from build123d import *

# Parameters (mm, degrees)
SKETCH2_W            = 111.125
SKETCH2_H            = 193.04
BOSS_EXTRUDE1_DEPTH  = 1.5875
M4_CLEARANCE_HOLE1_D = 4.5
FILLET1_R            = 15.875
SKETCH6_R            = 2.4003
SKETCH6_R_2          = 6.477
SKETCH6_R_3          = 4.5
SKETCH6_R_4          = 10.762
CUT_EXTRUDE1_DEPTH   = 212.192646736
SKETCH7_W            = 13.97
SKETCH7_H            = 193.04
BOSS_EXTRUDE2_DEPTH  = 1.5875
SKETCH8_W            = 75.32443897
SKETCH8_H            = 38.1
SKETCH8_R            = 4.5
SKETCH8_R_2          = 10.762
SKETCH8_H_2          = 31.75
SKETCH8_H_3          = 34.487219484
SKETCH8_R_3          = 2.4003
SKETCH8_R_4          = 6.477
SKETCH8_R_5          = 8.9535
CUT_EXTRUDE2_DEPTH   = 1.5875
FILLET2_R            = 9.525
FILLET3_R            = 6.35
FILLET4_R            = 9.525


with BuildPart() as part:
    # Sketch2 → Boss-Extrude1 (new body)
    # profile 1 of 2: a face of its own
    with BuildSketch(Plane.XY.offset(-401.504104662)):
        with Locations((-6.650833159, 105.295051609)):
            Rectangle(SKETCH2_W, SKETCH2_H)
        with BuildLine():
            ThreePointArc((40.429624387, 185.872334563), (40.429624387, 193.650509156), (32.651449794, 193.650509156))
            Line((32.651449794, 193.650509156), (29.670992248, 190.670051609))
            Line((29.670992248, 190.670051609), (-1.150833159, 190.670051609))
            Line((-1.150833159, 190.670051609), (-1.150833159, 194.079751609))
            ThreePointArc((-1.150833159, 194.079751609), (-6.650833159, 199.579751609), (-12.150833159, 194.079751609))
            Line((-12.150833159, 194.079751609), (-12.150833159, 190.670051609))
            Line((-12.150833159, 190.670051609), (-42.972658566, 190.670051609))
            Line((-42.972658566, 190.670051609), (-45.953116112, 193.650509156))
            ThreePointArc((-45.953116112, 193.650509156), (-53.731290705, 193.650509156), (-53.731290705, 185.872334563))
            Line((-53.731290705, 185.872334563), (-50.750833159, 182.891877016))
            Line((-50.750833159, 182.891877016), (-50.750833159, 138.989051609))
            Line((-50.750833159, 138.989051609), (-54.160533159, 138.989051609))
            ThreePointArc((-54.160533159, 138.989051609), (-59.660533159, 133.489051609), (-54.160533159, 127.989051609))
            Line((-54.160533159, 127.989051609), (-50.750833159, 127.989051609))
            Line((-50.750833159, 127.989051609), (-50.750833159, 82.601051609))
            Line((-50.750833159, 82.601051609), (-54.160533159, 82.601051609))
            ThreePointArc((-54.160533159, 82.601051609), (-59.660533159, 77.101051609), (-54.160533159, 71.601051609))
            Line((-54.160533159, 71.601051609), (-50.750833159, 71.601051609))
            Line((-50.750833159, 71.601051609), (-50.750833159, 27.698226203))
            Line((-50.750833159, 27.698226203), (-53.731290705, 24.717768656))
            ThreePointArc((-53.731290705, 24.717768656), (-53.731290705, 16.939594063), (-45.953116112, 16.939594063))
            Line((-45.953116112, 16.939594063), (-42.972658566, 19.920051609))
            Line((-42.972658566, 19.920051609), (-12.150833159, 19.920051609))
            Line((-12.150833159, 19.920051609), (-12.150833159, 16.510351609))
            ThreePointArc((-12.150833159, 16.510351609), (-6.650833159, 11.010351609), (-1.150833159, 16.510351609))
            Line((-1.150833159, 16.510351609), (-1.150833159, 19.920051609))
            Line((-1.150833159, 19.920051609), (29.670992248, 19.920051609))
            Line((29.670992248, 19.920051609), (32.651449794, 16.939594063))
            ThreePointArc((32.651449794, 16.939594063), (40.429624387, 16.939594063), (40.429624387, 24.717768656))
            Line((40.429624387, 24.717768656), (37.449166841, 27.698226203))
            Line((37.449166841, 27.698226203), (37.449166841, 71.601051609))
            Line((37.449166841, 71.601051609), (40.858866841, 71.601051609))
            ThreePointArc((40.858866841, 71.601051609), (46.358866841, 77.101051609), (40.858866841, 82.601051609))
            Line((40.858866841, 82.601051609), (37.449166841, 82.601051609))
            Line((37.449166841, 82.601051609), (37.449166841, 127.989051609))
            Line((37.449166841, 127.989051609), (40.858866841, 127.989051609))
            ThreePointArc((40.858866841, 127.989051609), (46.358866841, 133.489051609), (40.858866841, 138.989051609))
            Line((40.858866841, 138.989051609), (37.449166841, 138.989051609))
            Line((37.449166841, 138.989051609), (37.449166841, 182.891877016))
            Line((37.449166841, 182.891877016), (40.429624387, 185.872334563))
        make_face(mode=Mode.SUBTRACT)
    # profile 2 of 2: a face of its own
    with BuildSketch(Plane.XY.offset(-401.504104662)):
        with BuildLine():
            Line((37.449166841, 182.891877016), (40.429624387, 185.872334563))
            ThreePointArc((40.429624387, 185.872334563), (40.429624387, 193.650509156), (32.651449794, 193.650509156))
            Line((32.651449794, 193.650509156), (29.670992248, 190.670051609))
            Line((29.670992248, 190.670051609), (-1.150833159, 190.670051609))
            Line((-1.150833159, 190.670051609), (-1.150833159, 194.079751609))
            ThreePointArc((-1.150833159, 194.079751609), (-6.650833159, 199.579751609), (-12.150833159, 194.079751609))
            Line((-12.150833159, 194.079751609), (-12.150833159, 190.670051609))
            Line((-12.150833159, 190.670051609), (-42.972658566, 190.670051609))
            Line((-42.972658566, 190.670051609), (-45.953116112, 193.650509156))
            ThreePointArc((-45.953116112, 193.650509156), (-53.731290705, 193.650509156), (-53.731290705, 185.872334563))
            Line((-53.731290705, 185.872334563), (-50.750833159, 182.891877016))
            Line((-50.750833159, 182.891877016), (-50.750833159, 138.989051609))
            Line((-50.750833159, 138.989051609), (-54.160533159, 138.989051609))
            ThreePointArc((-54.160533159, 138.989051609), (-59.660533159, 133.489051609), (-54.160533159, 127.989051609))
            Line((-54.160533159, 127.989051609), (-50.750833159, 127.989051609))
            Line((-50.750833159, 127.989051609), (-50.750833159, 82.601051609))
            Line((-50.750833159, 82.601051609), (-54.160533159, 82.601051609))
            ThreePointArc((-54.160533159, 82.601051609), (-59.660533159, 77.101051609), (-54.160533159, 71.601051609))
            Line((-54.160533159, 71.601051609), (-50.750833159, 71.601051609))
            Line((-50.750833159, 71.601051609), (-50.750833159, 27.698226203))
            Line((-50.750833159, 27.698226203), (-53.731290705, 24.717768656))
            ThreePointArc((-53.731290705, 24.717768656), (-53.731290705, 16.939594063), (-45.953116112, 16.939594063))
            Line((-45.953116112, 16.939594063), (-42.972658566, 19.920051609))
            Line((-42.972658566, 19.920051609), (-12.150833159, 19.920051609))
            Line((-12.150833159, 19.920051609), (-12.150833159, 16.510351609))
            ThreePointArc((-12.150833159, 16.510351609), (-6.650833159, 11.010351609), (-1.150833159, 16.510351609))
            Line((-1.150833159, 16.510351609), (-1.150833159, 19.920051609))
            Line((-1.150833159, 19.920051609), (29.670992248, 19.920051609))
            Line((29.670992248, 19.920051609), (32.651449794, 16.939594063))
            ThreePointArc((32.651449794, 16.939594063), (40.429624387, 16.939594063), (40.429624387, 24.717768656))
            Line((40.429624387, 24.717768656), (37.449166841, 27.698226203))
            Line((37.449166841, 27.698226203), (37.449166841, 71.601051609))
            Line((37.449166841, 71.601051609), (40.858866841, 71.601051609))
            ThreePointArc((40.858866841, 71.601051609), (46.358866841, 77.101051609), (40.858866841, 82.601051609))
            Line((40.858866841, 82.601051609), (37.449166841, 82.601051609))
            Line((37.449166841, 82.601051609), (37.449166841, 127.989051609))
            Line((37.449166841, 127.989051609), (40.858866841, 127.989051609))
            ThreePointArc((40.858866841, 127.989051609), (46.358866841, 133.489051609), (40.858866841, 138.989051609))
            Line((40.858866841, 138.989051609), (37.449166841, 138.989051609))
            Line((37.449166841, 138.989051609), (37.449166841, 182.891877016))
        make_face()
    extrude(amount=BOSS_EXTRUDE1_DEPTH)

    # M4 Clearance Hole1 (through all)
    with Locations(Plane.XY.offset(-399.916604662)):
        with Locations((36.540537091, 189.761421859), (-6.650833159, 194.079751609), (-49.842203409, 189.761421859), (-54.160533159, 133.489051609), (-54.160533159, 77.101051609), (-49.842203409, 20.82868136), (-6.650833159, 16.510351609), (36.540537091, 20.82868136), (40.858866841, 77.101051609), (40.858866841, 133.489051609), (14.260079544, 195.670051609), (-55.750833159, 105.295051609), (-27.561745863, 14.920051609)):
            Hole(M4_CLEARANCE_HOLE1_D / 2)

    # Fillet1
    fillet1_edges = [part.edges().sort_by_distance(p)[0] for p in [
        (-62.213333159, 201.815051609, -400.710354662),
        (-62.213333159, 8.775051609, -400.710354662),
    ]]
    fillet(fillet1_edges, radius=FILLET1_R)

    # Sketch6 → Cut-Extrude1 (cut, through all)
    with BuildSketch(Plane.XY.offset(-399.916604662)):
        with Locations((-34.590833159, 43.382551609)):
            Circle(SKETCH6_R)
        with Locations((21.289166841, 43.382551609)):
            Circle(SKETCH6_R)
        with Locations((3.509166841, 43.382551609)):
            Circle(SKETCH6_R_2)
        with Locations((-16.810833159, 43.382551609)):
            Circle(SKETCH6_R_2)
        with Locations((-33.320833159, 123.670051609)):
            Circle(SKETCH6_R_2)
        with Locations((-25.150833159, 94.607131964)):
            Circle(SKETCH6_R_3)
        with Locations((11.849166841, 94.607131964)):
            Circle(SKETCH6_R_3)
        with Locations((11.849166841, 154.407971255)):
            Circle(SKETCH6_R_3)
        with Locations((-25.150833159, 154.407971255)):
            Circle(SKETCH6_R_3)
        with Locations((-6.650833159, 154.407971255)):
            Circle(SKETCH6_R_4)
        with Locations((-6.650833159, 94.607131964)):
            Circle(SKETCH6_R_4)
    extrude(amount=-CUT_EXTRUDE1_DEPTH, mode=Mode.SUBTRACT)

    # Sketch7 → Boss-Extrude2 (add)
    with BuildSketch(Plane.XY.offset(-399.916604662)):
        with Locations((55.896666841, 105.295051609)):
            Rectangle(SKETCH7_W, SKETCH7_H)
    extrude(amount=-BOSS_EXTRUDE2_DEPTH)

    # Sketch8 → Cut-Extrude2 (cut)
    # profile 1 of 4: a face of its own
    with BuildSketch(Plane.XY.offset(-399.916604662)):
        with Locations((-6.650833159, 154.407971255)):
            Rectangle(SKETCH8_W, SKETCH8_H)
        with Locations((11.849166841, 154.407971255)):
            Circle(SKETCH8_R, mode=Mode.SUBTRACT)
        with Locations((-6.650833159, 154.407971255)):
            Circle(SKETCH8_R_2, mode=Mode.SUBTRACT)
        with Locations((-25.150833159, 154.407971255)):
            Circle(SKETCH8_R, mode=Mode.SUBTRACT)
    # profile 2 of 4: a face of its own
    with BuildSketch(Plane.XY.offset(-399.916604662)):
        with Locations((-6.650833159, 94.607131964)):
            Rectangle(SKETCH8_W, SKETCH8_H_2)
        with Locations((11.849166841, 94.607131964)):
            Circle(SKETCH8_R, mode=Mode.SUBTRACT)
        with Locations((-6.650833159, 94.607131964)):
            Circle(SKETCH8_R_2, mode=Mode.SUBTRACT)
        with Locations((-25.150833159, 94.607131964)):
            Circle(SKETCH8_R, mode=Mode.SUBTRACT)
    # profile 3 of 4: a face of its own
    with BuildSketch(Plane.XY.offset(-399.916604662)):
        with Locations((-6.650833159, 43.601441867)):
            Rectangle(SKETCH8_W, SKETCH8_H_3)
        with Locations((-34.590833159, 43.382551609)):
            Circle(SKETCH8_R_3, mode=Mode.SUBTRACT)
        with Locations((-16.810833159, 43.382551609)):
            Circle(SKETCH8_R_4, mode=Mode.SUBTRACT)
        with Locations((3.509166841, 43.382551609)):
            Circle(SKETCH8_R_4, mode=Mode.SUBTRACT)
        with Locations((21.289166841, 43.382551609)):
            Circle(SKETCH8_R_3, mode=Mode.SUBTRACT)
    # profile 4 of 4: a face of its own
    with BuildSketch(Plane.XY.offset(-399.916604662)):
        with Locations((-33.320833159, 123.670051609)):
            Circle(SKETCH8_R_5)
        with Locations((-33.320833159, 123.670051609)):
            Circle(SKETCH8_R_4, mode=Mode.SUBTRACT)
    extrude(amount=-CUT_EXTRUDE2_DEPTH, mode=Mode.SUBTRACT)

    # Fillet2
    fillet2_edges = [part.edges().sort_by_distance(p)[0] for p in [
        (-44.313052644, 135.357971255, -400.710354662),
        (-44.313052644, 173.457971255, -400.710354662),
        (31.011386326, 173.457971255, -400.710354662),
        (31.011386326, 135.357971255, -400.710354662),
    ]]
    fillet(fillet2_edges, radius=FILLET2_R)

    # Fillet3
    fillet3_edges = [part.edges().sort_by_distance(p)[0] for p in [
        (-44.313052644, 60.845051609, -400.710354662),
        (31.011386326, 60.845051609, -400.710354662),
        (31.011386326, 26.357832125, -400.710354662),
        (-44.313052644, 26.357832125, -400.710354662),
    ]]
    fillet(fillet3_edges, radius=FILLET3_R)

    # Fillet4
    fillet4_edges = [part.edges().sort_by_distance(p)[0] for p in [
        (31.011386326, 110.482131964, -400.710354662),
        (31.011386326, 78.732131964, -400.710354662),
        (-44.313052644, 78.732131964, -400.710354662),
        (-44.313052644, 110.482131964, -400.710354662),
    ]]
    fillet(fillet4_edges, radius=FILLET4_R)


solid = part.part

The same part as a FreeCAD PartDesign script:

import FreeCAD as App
import Part
import Sketcher
from FreeCAD import Vector
Q = App.Units.Quantity


def edges_at(feature, points):
    """Names of the edges that pass closest to the given points."""
    edges = feature.Shape.Edges
    near = lambda p: min(range(len(edges)), key=lambda i: edges[i].distToShape(Part.Vertex(*p))[0])
    return sorted({f"Edge{near(p) + 1}" for p in points})

doc = App.newDocument("Part")
body = doc.addObject("PartDesign::Body", "Body")

# Sketch on XY plane
sketch1 = body.newObject("Sketcher::SketchObject", "Sketch")
sketch1.AttachmentSupport = (doc.getObject("XY_Plane"), [""])
sketch1.MapMode = "FlatFace"
sketch1.AttachmentOffset = App.Placement(Vector(0, 0, -401.504105), App.Rotation())
sketch1.addGeometry(Part.LineSegment(Vector(-62, 202, 0), Vector(-62, 9, 0)), False)
sketch1.addGeometry(Part.LineSegment(Vector(-62, 9, 0), Vector(49, 9, 0)), False)
sketch1.addGeometry(Part.LineSegment(Vector(49, 9, 0), Vector(49, 202, 0)), False)
sketch1.addGeometry(Part.LineSegment(Vector(49, 202, 0), Vector(-62, 202, 0)), False)
sketch1.addConstraint(Sketcher.Constraint("Coincident", 0, 2, 1, 1))
sketch1.addConstraint(Sketcher.Constraint("Coincident", 1, 2, 2, 1))
sketch1.addConstraint(Sketcher.Constraint("Coincident", 2, 2, 3, 1))
sketch1.addConstraint(Sketcher.Constraint("Coincident", 3, 2, 0, 1))
sketch1.addConstraint(Sketcher.Constraint("Vertical", 0))
sketch1.addConstraint(Sketcher.Constraint("Horizontal", 1))
sketch1.addConstraint(Sketcher.Constraint("Vertical", 2))
sketch1.addConstraint(Sketcher.Constraint("Horizontal", 3))
sketch1.addConstraint(Sketcher.Constraint("DistanceY", 0, 2, 0, 1, Q("7.6 in")))
sketch1.addConstraint(Sketcher.Constraint("DistanceX", 1, 1, 1, 2, Q("4.375 in")))
sketch1.addConstraint(Sketcher.Constraint("DistanceY", -1, 1, 0, 2, Q("8.775052 mm")))
sketch1.addConstraint(Sketcher.Constraint("DistanceX", 0, 2, -1, 1, Q("62.213333 mm")))
pad1 = body.newObject("PartDesign::Pad", "Pad")
pad1.Profile = sketch1
pad1.Length = Q("0.0625 in")

# Sketch on XY plane
sketch2 = body.newObject("Sketcher::SketchObject", "Sketch001")
sketch2.AttachmentSupport = (doc.getObject("XY_Plane"), [""])
sketch2.MapMode = "FlatFace"
sketch2.AttachmentOffset = App.Placement(Vector(0, 0, -399.916605), App.Rotation())
sketch2.addGeometry(Part.Circle(Vector(36.5, 189.8, 0), Vector(0, 0, 1), 2.2), False)
sketch2.addGeometry(Part.Circle(Vector(-6.7, 194.1, 0), Vector(0, 0, 1), 2.2), False)
sketch2.addGeometry(Part.Circle(Vector(-49.8, 189.8, 0), Vector(0, 0, 1), 2.2), False)
sketch2.addGeometry(Part.Circle(Vector(-54.2, 133.5, 0), Vector(0, 0, 1), 2.2), False)
sketch2.addGeometry(Part.Circle(Vector(-54.2, 77.1, 0), Vector(0, 0, 1), 2.2), False)
sketch2.addGeometry(Part.Circle(Vector(-49.8, 20.8, 0), Vector(0, 0, 1), 2.2), False)
sketch2.addGeometry(Part.Circle(Vector(-6.7, 16.5, 0), Vector(0, 0, 1), 2.2), False)
sketch2.addGeometry(Part.Circle(Vector(36.5, 20.8, 0), Vector(0, 0, 1), 2.2), False)
sketch2.addGeometry(Part.Circle(Vector(40.9, 77.1, 0), Vector(0, 0, 1), 2.2), False)
sketch2.addGeometry(Part.Circle(Vector(40.9, 133.5, 0), Vector(0, 0, 1), 2.2), False)
sketch2.addGeometry(Part.Circle(Vector(14.3, 195.7, 0), Vector(0, 0, 1), 2.2), False)
sketch2.addGeometry(Part.Circle(Vector(-55.8, 105.3, 0), Vector(0, 0, 1), 2.2), False)
sketch2.addGeometry(Part.Circle(Vector(-27.6, 14.9, 0), Vector(0, 0, 1), 2.2), False)
sketch2.addConstraint(Sketcher.Constraint("Equal", 0, 1))
sketch2.addConstraint(Sketcher.Constraint("Equal", 1, 2))
sketch2.addConstraint(Sketcher.Constraint("Equal", 2, 3))
sketch2.addConstraint(Sketcher.Constraint("Equal", 3, 4))
sketch2.addConstraint(Sketcher.Constraint("Equal", 4, 5))
sketch2.addConstraint(Sketcher.Constraint("Equal", 5, 6))
sketch2.addConstraint(Sketcher.Constraint("Equal", 6, 7))
sketch2.addConstraint(Sketcher.Constraint("Equal", 7, 8))
sketch2.addConstraint(Sketcher.Constraint("Equal", 8, 9))
sketch2.addConstraint(Sketcher.Constraint("Equal", 9, 10))
sketch2.addConstraint(Sketcher.Constraint("Equal", 10, 11))
sketch2.addConstraint(Sketcher.Constraint("Equal", 11, 12))
sketch2.addConstraint(Sketcher.Constraint("Horizontal", 0, 3, 2, 3))
sketch2.addConstraint(Sketcher.Constraint("Horizontal", 5, 3, 7, 3))
sketch2.addConstraint(Sketcher.Constraint("Horizontal", 4, 3, 8, 3))
sketch2.addConstraint(Sketcher.Constraint("Horizontal", 3, 3, 9, 3))
sketch2.addConstraint(Sketcher.Constraint("Vertical", 3, 3, 4, 3))
sketch2.addConstraint(Sketcher.Constraint("Vertical", 2, 3, 5, 3))
sketch2.addConstraint(Sketcher.Constraint("Vertical", 1, 3, 6, 3))
sketch2.addConstraint(Sketcher.Constraint("Vertical", 0, 3, 7, 3))
sketch2.addConstraint(Sketcher.Constraint("Vertical", 8, 3, 9, 3))
sketch2.addConstraint(Sketcher.Constraint("Diameter", 0, Q("4.5 mm")))
sketch2.addConstraint(Sketcher.Constraint("DistanceY", 4, 3, 3, 3, Q("2.22 in")))
sketch2.addConstraint(Sketcher.Constraint("DistanceY", 11, 3, 3, 3, Q("1.11 in")))
sketch2.addConstraint(Sketcher.Constraint("DistanceX", 3, 3, 1, 3, Q("47.5097 mm")))
sketch2.addConstraint(Sketcher.Constraint("DistanceY", 3, 3, 1, 3, Q("60.5907 mm")))
sketch2.addConstraint(Sketcher.Constraint("DistanceY", 6, 3, 4, 3, Q("60.5907 mm")))
sketch2.addConstraint(Sketcher.Constraint("DistanceX", 6, 3, 8, 3, Q("47.5097 mm")))
sketch2.addConstraint(Sketcher.Constraint("DistanceY", 1, 3, 10, 3, Q("1.5903 mm")))
sketch2.addConstraint(Sketcher.Constraint("DistanceX", 11, 3, 3, 3, Q("1.5903 mm")))
sketch2.addConstraint(Sketcher.Constraint("DistanceY", 12, 3, 6, 3, Q("1.5903 mm")))
sketch2.addConstraint(Sketcher.Constraint("DistanceY", -1, 1, 0, 3, Q("189.761422 mm")))
sketch2.addConstraint(Sketcher.Constraint("DistanceY", -1, 1, 1, 3, Q("194.079752 mm")))
sketch2.addConstraint(Sketcher.Constraint("DistanceY", -1, 1, 5, 3, Q("20.828681 mm")))
sketch2.addConstraint(Sketcher.Constraint("DistanceX", -1, 1, 10, 3, Q("14.26008 mm")))
sketch2.addConstraint(Sketcher.Constraint("DistanceX", 1, 3, 0, 3, Q("43.19137 mm")))
sketch2.addConstraint(Sketcher.Constraint("DistanceX", 2, 3, 1, 3, Q("43.19137 mm")))
sketch2.addConstraint(Sketcher.Constraint("DistanceX", -1, 1, 0, 3, Q("36.540537 mm")))
sketch2.addConstraint(Sketcher.Constraint("DistanceX", 12, 3, -1, 1, Q("27.561746 mm")))
doc.recompute()
hole = body.newObject("PartDesign::Hole", "Hole")
hole.Profile = sketch2
hole.ThreadType = "None"
hole.Diameter = 4.5
hole.DepthType = "ThroughAll"
doc.recompute()

fillet = body.newObject("PartDesign::Fillet", "Fillet")
fillet.Base = (hole, edges_at(hole, [(-62.213, 201.815, -400.71), (-62.213, 8.775, -400.71)]))
fillet.Radius = Q("0.625 in")

# Sketch on XY plane
sketch3 = body.newObject("Sketcher::SketchObject", "Sketch002")
sketch3.AttachmentSupport = (doc.getObject("XY_Plane"), [""])
sketch3.MapMode = "FlatFace"
sketch3.AttachmentOffset = App.Placement(Vector(0, 0, -399.916605), App.Rotation())
sketch3.addGeometry(Part.Circle(Vector(-34.6, 43.4, 0), Vector(0, 0, 1), 2.4), False)
sketch3.addGeometry(Part.Circle(Vector(21.3, 43.4, 0), Vector(0, 0, 1), 2.4), False)
sketch3.addGeometry(Part.Circle(Vector(3.5, 43.4, 0), Vector(0, 0, 1), 6.5), False)
sketch3.addGeometry(Part.Circle(Vector(-16.8, 43.4, 0), Vector(0, 0, 1), 6.5), False)
sketch3.addGeometry(Part.Circle(Vector(-33.3, 123.7, 0), Vector(0, 0, 1), 6.5), False)
sketch3.addGeometry(Part.Circle(Vector(-25.2, 94.6, 0), Vector(0, 0, 1), 4.5), False)
sketch3.addGeometry(Part.Circle(Vector(11.8, 94.6, 0), Vector(0, 0, 1), 4.5), False)
sketch3.addGeometry(Part.Circle(Vector(11.8, 154.4, 0), Vector(0, 0, 1), 4.5), False)
sketch3.addGeometry(Part.Circle(Vector(-25.2, 154.4, 0), Vector(0, 0, 1), 4.5), False)
sketch3.addGeometry(Part.Circle(Vector(-6.7, 154.4, 0), Vector(0, 0, 1), 10.8), False)
sketch3.addGeometry(Part.Circle(Vector(-6.7, 94.6, 0), Vector(0, 0, 1), 10.8), False)
sketch3.addConstraint(Sketcher.Constraint("Equal", 0, 1))
sketch3.addConstraint(Sketcher.Constraint("Equal", 2, 3))
sketch3.addConstraint(Sketcher.Constraint("Equal", 3, 4))
sketch3.addConstraint(Sketcher.Constraint("Equal", 5, 6))
sketch3.addConstraint(Sketcher.Constraint("Equal", 6, 7))
sketch3.addConstraint(Sketcher.Constraint("Equal", 7, 8))
sketch3.addConstraint(Sketcher.Constraint("Equal", 9, 10))
sketch3.addConstraint(Sketcher.Constraint("Horizontal", 0, 3, 1, 3))
sketch3.addConstraint(Sketcher.Constraint("Horizontal", 1, 3, 2, 3))
sketch3.addConstraint(Sketcher.Constraint("Horizontal", 2, 3, 3, 3))
sketch3.addConstraint(Sketcher.Constraint("Horizontal", 5, 3, 6, 3))
sketch3.addConstraint(Sketcher.Constraint("Horizontal", 7, 3, 8, 3))
sketch3.addConstraint(Sketcher.Constraint("Horizontal", 8, 3, 9, 3))
sketch3.addConstraint(Sketcher.Constraint("Horizontal", 6, 3, 10, 3))
sketch3.addConstraint(Sketcher.Constraint("Vertical", 6, 3, 7, 3))
sketch3.addConstraint(Sketcher.Constraint("Vertical", 5, 3, 8, 3))
sketch3.addConstraint(Sketcher.Constraint("Vertical", 9, 3, 10, 3))
sketch3.addConstraint(Sketcher.Constraint("Diameter", 2, Q("0.51 in")))
sketch3.addConstraint(Sketcher.Constraint("Diameter", 0, Q("0.189 in")))
sketch3.addConstraint(Sketcher.Constraint("DistanceX", 0, 3, 1, 3, Q("2.2 in")))
sketch3.addConstraint(Sketcher.Constraint("DistanceX", 2, 3, 1, 3, Q("0.7 in")))
sketch3.addConstraint(Sketcher.Constraint("DistanceX", 0, 3, 3, 3, Q("0.7 in")))
sketch3.addConstraint(Sketcher.Constraint("DistanceX", 10, 3, 2, 3, Q("0.4 in")))
sketch3.addConstraint(Sketcher.Constraint("Diameter", 5, Q("9 mm")))
sketch3.addConstraint(Sketcher.Constraint("Diameter", 9, Q("21.524 mm")))
sketch3.addConstraint(Sketcher.Constraint("DistanceX", 0, 3, 4, 3, Q("0.05 in")))
sketch3.addConstraint(Sketcher.Constraint("DistanceY", 0, 3, 4, 3, Q("80.2875 mm")))
sketch3.addConstraint(Sketcher.Constraint("DistanceX", 4, 3, 5, 3, Q("8.17 mm")))
sketch3.addConstraint(Sketcher.Constraint("DistanceX", 5, 3, 6, 3, Q("37 mm")))
sketch3.addConstraint(Sketcher.Constraint("DistanceY", -1, 1, 0, 3, Q("43.382552 mm")))
sketch3.addConstraint(Sketcher.Constraint("DistanceY", -1, 1, 5, 3, Q("94.607132 mm")))
sketch3.addConstraint(Sketcher.Constraint("DistanceY", -1, 1, 7, 3, Q("154.407971 mm")))
sketch3.addConstraint(Sketcher.Constraint("DistanceX", 0, 3, -1, 1, Q("34.590833 mm")))
pocket1 = body.newObject("PartDesign::Pocket", "Pocket")
pocket1.Profile = sketch3
pocket1.Type = "ThroughAll"

# Sketch on XY plane
sketch4 = body.newObject("Sketcher::SketchObject", "Sketch003")
sketch4.AttachmentSupport = (doc.getObject("XY_Plane"), [""])
sketch4.MapMode = "FlatFace"
sketch4.AttachmentOffset = App.Placement(Vector(0, 0, -399.916605), App.Rotation())
sketch4.addGeometry(Part.LineSegment(Vector(49, 202, 0), Vector(49, 9, 0)), False)
sketch4.addGeometry(Part.LineSegment(Vector(49, 9, 0), Vector(63, 9, 0)), False)
sketch4.addGeometry(Part.LineSegment(Vector(63, 9, 0), Vector(63, 202, 0)), False)
sketch4.addGeometry(Part.LineSegment(Vector(63, 202, 0), Vector(49, 202, 0)), False)
sketch4.addConstraint(Sketcher.Constraint("Coincident", 0, 2, 1, 1))
sketch4.addConstraint(Sketcher.Constraint("Coincident", 1, 2, 2, 1))
sketch4.addConstraint(Sketcher.Constraint("Coincident", 2, 2, 3, 1))
sketch4.addConstraint(Sketcher.Constraint("Coincident", 3, 2, 0, 1))
sketch4.addConstraint(Sketcher.Constraint("Vertical", 0))
sketch4.addConstraint(Sketcher.Constraint("Horizontal", 1))
sketch4.addConstraint(Sketcher.Constraint("Vertical", 2))
sketch4.addConstraint(Sketcher.Constraint("Horizontal", 3))
sketch4.addConstraint(Sketcher.Constraint("DistanceY", 0, 2, 0, 1, Q("7.6 in")))
sketch4.addConstraint(Sketcher.Constraint("DistanceX", 1, 1, 1, 2, Q("0.55 in")))
sketch4.addConstraint(Sketcher.Constraint("DistanceY", -1, 1, 0, 2, Q("8.775052 mm")))
sketch4.addConstraint(Sketcher.Constraint("DistanceX", -1, 1, 0, 2, Q("48.911667 mm")))
pad2 = body.newObject("PartDesign::Pad", "Pad001")
pad2.Profile = sketch4
pad2.Length = Q("0.0625 in")
pad2.Reversed = True

# Sketch on XY plane
sketch5 = body.newObject("Sketcher::SketchObject", "Sketch004")
sketch5.AttachmentSupport = (doc.getObject("XY_Plane"), [""])
sketch5.MapMode = "FlatFace"
sketch5.AttachmentOffset = App.Placement(Vector(0, 0, -399.916605), App.Rotation())
sketch5.addGeometry(Part.LineSegment(Vector(-44.3, 173.5, 0), Vector(-44.3, 135.4, 0)), False)
sketch5.addGeometry(Part.LineSegment(Vector(-44.3, 135.4, 0), Vector(31, 135.4, 0)), False)
sketch5.addGeometry(Part.LineSegment(Vector(31, 135.4, 0), Vector(31, 173.5, 0)), False)
sketch5.addGeometry(Part.LineSegment(Vector(31, 173.5, 0), Vector(-44.3, 173.5, 0)), False)
sketch5.addGeometry(Part.Circle(Vector(-25.2, 154.4, 0), Vector(0, 0, 1), 4.5), False)
sketch5.addGeometry(Part.Circle(Vector(-6.7, 154.4, 0), Vector(0, 0, 1), 10.8), False)
sketch5.addGeometry(Part.Circle(Vector(11.8, 154.4, 0), Vector(0, 0, 1), 4.5), False)
sketch5.addGeometry(Part.LineSegment(Vector(-44.3, 110.5, 0), Vector(-44.3, 78.7, 0)), False)
sketch5.addGeometry(Part.LineSegment(Vector(-44.3, 78.7, 0), Vector(31, 78.7, 0)), False)
sketch5.addGeometry(Part.LineSegment(Vector(31, 78.7, 0), Vector(31, 110.5, 0)), False)
sketch5.addGeometry(Part.LineSegment(Vector(31, 110.5, 0), Vector(-44.3, 110.5, 0)), False)
sketch5.addGeometry(Part.Circle(Vector(-25.2, 94.6, 0), Vector(0, 0, 1), 4.5), False)
sketch5.addGeometry(Part.Circle(Vector(-6.7, 94.6, 0), Vector(0, 0, 1), 10.8), False)
sketch5.addGeometry(Part.Circle(Vector(11.8, 94.6, 0), Vector(0, 0, 1), 4.5), False)
sketch5.addGeometry(Part.LineSegment(Vector(-44.3, 60.8, 0), Vector(-44.3, 26.4, 0)), False)
sketch5.addGeometry(Part.LineSegment(Vector(-44.3, 26.4, 0), Vector(31, 26.4, 0)), False)
sketch5.addGeometry(Part.LineSegment(Vector(31, 26.4, 0), Vector(31, 60.8, 0)), False)
sketch5.addGeometry(Part.LineSegment(Vector(31, 60.8, 0), Vector(-44.3, 60.8, 0)), False)
sketch5.addGeometry(Part.Circle(Vector(-34.6, 43.4, 0), Vector(0, 0, 1), 2.4), False)
sketch5.addGeometry(Part.Circle(Vector(-16.8, 43.4, 0), Vector(0, 0, 1), 6.5), False)
sketch5.addGeometry(Part.Circle(Vector(3.5, 43.4, 0), Vector(0, 0, 1), 6.5), False)
sketch5.addGeometry(Part.Circle(Vector(21.3, 43.4, 0), Vector(0, 0, 1), 2.4), False)
sketch5.addGeometry(Part.Circle(Vector(-33.3, 123.7, 0), Vector(0, 0, 1), 9), False)
sketch5.addGeometry(Part.Circle(Vector(-33.3, 123.7, 0), Vector(0, 0, 1), 6.5), False)
sketch5.addConstraint(Sketcher.Constraint("Coincident", 0, 2, 1, 1))
sketch5.addConstraint(Sketcher.Constraint("Coincident", 1, 2, 2, 1))
sketch5.addConstraint(Sketcher.Constraint("Coincident", 2, 2, 3, 1))
sketch5.addConstraint(Sketcher.Constraint("Coincident", 3, 2, 0, 1))
sketch5.addConstraint(Sketcher.Constraint("Coincident", 7, 2, 8, 1))
sketch5.addConstraint(Sketcher.Constraint("Coincident", 8, 2, 9, 1))
sketch5.addConstraint(Sketcher.Constraint("Coincident", 9, 2, 10, 1))
sketch5.addConstraint(Sketcher.Constraint("Coincident", 10, 2, 7, 1))
sketch5.addConstraint(Sketcher.Constraint("Coincident", 14, 2, 15, 1))
sketch5.addConstraint(Sketcher.Constraint("Coincident", 15, 2, 16, 1))
sketch5.addConstraint(Sketcher.Constraint("Coincident", 16, 2, 17, 1))
sketch5.addConstraint(Sketcher.Constraint("Coincident", 17, 2, 14, 1))
sketch5.addConstraint(Sketcher.Constraint("Vertical", 0))
sketch5.addConstraint(Sketcher.Constraint("Horizontal", 1))
sketch5.addConstraint(Sketcher.Constraint("Vertical", 2))
sketch5.addConstraint(Sketcher.Constraint("Horizontal", 3))
sketch5.addConstraint(Sketcher.Constraint("Vertical", 7))
sketch5.addConstraint(Sketcher.Constraint("Horizontal", 8))
sketch5.addConstraint(Sketcher.Constraint("Vertical", 9))
sketch5.addConstraint(Sketcher.Constraint("Horizontal", 10))
sketch5.addConstraint(Sketcher.Constraint("Vertical", 14))
sketch5.addConstraint(Sketcher.Constraint("Horizontal", 15))
sketch5.addConstraint(Sketcher.Constraint("Vertical", 16))
sketch5.addConstraint(Sketcher.Constraint("Horizontal", 17))
sketch5.addConstraint(Sketcher.Constraint("Coincident", 23, 3, 22, 3))
sketch5.addConstraint(Sketcher.Constraint("Equal", 4, 6))
sketch5.addConstraint(Sketcher.Constraint("Equal", 6, 11))
sketch5.addConstraint(Sketcher.Constraint("Equal", 5, 12))
sketch5.addConstraint(Sketcher.Constraint("Equal", 11, 13))
sketch5.addConstraint(Sketcher.Constraint("Equal", 19, 20))
sketch5.addConstraint(Sketcher.Constraint("Equal", 18, 21))
sketch5.addConstraint(Sketcher.Constraint("Equal", 20, 23))
sketch5.addConstraint(Sketcher.Constraint("Horizontal", 4, 3, 5, 3))
sketch5.addConstraint(Sketcher.Constraint("Horizontal", 5, 3, 6, 3))
sketch5.addConstraint(Sketcher.Constraint("Horizontal", 11, 3, 12, 3))
sketch5.addConstraint(Sketcher.Constraint("Horizontal", 12, 3, 13, 3))
sketch5.addConstraint(Sketcher.Constraint("Horizontal", 18, 3, 19, 3))
sketch5.addConstraint(Sketcher.Constraint("Horizontal", 19, 3, 20, 3))
sketch5.addConstraint(Sketcher.Constraint("Horizontal", 20, 3, 21, 3))
sketch5.addConstraint(Sketcher.Constraint("Vertical", 4, 3, 11, 3))
sketch5.addConstraint(Sketcher.Constraint("Vertical", 5, 3, 12, 3))
sketch5.addConstraint(Sketcher.Constraint("Vertical", 6, 3, 13, 3))
sketch5.addConstraint(Sketcher.Constraint("Vertical", 3, 2, 7, 2))
sketch5.addConstraint(Sketcher.Constraint("Vertical", 2, 2, 8, 2))
sketch5.addConstraint(Sketcher.Constraint("Vertical", 10, 2, 14, 2))
sketch5.addConstraint(Sketcher.Constraint("Vertical", 9, 2, 15, 2))
sketch5.addConstraint(Sketcher.Constraint("Diameter", 19, Q("0.51 in")))
sketch5.addConstraint(Sketcher.Constraint("Diameter", 18, Q("0.189 in")))
sketch5.addConstraint(Sketcher.Constraint("Diameter", 22, Q("0.705 in")))
sketch5.addConstraint(Sketcher.Constraint("DistanceY", 0, 2, 0, 1, Q("1.5 in")))
sketch5.addConstraint(Sketcher.Constraint("DistanceY", 7, 2, 7, 1, Q("1.25 in")))
sketch5.addConstraint(Sketcher.Constraint("DistanceX", 18, 3, 12, 3, Q("1.1 in")))
sketch5.addConstraint(Sketcher.Constraint("DistanceX", 18, 3, 19, 3, Q("0.7 in")))
sketch5.addConstraint(Sketcher.Constraint("DistanceX", 19, 3, 20, 3, Q("0.8 in")))
sketch5.addConstraint(Sketcher.Constraint("DistanceX", 20, 3, 21, 3, Q("0.7 in")))
sketch5.addConstraint(Sketcher.Constraint("Diameter", 4, Q("9 mm")))
sketch5.addConstraint(Sketcher.Constraint("Diameter", 5, Q("21.524 mm")))
sketch5.addConstraint(Sketcher.Constraint("DistanceX", 22, 3, 12, 3, Q("1.05 in")))
sketch5.addConstraint(Sketcher.Constraint("DistanceY", 0, 2, 4, 3, Q("0.75 in")))
sketch5.addConstraint(Sketcher.Constraint("DistanceY", 7, 2, 11, 3, Q("0.625 in")))
sketch5.addConstraint(Sketcher.Constraint("DistanceY", 21, 3, 16, 2, Q("0.6875 in")))
sketch5.addConstraint(Sketcher.Constraint("DistanceX", 1, 1, 1, 2, Q("75.324439 mm")))
sketch5.addConstraint(Sketcher.Constraint("DistanceY", 14, 2, 14, 1, Q("34.487219 mm")))
sketch5.addConstraint(Sketcher.Constraint("DistanceX", 4, 3, 5, 3, Q("18.5 mm")))
sketch5.addConstraint(Sketcher.Constraint("DistanceX", 5, 3, 6, 3, Q("18.5 mm")))
sketch5.addConstraint(Sketcher.Constraint("DistanceY", 14, 2, 7, 2, Q("52.3743 mm")))
sketch5.addConstraint(Sketcher.Constraint("DistanceY", -1, 1, 4, 3, Q("154.407971 mm")))
sketch5.addConstraint(Sketcher.Constraint("DistanceY", -1, 1, 11, 3, Q("94.607132 mm")))
sketch5.addConstraint(Sketcher.Constraint("DistanceY", -1, 1, 22, 3, Q("123.670052 mm")))
sketch5.addConstraint(Sketcher.Constraint("DistanceX", 0, 2, 22, 3, Q("10.992219 mm")))
sketch5.addConstraint(Sketcher.Constraint("DistanceX", 4, 3, -1, 1, Q("25.150833 mm")))
pocket2 = body.newObject("PartDesign::Pocket", "Pocket001")
pocket2.Profile = sketch5
pocket2.Length = Q("0.0625 in")
doc.recompute()

fillet2 = body.newObject("PartDesign::Fillet", "Fillet001")
fillet2.Base = (pocket2, edges_at(pocket2, [
    (-44.313, 135.358, -400.71),
    (-44.313, 173.458, -400.71),
    (31.011, 173.458, -400.71),
    (31.011, 135.358, -400.71),
]))
fillet2.Radius = Q("0.375 in")
doc.recompute()

fillet3 = body.newObject("PartDesign::Fillet", "Fillet002")
fillet3.Base = (fillet2, edges_at(fillet2, [
    (-44.313, 60.845, -400.71),
    (31.011, 60.845, -400.71),
    (31.011, 26.358, -400.71),
    (-44.313, 26.358, -400.71),
]))
fillet3.Radius = Q("0.25 in")
doc.recompute()

fillet4 = body.newObject("PartDesign::Fillet", "Fillet003")
fillet4.Base = (fillet3, edges_at(fillet3, [
    (31.011, 110.482, -400.71),
    (31.011, 78.732, -400.71),
    (-44.313, 78.732, -400.71),
    (-44.313, 110.482, -400.71),
]))
fillet4.Radius = Q("0.375 in")

doc.recompute()
